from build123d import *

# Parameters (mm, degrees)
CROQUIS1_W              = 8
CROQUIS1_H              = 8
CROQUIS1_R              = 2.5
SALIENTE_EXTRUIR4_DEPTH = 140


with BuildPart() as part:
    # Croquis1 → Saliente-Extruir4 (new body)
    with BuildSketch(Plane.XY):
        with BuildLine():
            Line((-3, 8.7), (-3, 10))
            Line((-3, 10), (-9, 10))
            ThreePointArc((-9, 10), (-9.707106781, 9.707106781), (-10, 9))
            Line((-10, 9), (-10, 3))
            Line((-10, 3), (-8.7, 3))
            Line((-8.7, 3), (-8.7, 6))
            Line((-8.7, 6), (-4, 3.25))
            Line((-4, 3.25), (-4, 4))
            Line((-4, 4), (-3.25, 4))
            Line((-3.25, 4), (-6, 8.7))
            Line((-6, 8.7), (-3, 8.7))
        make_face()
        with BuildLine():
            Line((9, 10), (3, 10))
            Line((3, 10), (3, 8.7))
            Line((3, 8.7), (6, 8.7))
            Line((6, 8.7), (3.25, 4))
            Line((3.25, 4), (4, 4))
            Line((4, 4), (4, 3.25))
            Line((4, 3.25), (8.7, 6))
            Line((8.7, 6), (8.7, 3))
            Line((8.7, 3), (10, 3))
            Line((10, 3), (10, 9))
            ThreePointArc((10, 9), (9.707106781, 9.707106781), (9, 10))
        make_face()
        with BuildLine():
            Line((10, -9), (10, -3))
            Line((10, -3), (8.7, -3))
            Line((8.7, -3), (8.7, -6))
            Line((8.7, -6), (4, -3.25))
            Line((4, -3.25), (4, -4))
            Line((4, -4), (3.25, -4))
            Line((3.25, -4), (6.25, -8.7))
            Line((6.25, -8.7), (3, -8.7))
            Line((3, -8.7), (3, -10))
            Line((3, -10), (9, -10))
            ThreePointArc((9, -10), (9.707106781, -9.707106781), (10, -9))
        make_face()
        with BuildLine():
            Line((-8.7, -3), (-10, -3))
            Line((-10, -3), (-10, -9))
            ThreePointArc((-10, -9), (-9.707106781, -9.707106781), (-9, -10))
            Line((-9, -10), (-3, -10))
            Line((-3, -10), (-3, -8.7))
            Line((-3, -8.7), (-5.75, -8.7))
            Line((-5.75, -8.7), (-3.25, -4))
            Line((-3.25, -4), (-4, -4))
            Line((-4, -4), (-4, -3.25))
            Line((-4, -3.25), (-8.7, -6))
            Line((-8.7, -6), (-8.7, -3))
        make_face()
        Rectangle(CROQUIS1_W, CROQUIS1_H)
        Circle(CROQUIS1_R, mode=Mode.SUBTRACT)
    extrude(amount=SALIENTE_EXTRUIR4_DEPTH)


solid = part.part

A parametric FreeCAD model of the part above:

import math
import FreeCAD as App
import Part
import Sketcher

V = App.Vector

doc = App.newDocument("Part")
body = doc.addObject("PartDesign::Body", "Body")

# Sketch on XY plane
sketch1 = doc.addObject("Sketcher::SketchObject", "Sketch")
body.addObject(sketch1)
sketch1.AttachmentSupport = (doc.XY_Plane, [""])
sketch1.MapMode = "FlatFace"
sketch1.addGeometry([
    Part.LineSegment(V(-3, 8.7, 0), V(-3, 10, 0)),  # 0
    Part.LineSegment(V(-3, 10, 0), V(-9, 10, 0)),  # 1
    Part.ArcOfCircle(Part.Circle(V(-9, 9, 0), V(0, 0, 1), 1), math.radians(90), math.radians(180)),  # 2
    Part.LineSegment(V(-10, 9, 0), V(-10, 3, 0)),  # 3
    Part.LineSegment(V(-10, 3, 0), V(-8.7, 3, 0)),  # 4
    Part.LineSegment(V(-8.7, 3, 0), V(-8.7, 6, 0)),  # 5
    Part.LineSegment(V(-8.7, 6, 0), V(-4, 3.2, 0)),  # 6
    Part.LineSegment(V(-4, 3.2, 0), V(-4, -3.2, 0)),  # 7
    Part.LineSegment(V(-4, -3.2, 0), V(-8.7, -6, 0)),  # 8
    Part.LineSegment(V(-8.7, -6, 0), V(-8.7, -3, 0)),  # 9
    Part.LineSegment(V(-8.7, -3, 0), V(-10, -3, 0)),  # 10
    Part.LineSegment(V(-10, -3, 0), V(-10, -9, 0)),  # 11
    Part.ArcOfCircle(Part.Circle(V(-9, -9, 0), V(0, 0, 1), 1), math.radians(-180), math.radians(-90)),  # 12
    Part.LineSegment(V(-9, -10, 0), V(-3, -10, 0)),  # 13
    Part.LineSegment(V(-3, -10, 0), V(-3, -8.7, 0)),  # 14
    Part.LineSegment(V(-3, -8.7, 0), V(-5.8, -8.7, 0)),  # 15
    Part.LineSegment(V(-5.8, -8.7, 0), V(-3.2, -4, 0)),  # 16
    Part.LineSegment(V(-3.2, -4, 0), V(3.2, -4, 0)),  # 17
    Part.LineSegment(V(3.2, -4, 0), V(6.2, -8.7, 0)),  # 18
    Part.LineSegment(V(6.2, -8.7, 0), V(3, -8.7, 0)),  # 19
    Part.LineSegment(V(3, -8.7, 0), V(3, -10, 0)),  # 20
    Part.LineSegment(V(3, -10, 0), V(9, -10, 0)),  # 21
    Part.ArcOfCircle(Part.Circle(V(9, -9, 0), V(0, 0, 1), 1), math.radians(-90), math.radians(0)),  # 22
    Part.LineSegment(V(10, -9, 0), V(10, -3, 0)),  # 23
    Part.LineSegment(V(10, -3, 0), V(8.7, -3, 0)),  # 24
    Part.LineSegment(V(8.7, -3, 0), V(8.7, -6, 0)),  # 25
    Part.LineSegment(V(8.7, -6, 0), V(4, -3.2, 0)),  # 26
    Part.LineSegment(V(4, -3.2, 0), V(4, 3.2, 0)),  # 27
    Part.LineSegment(V(4, 3.2, 0), V(8.7, 6, 0)),  # 28
    Part.LineSegment(V(8.7, 6, 0), V(8.7, 3, 0)),  # 29
    Part.LineSegment(V(8.7, 3, 0), V(10, 3, 0)),  # 30
    Part.LineSegment(V(10, 3, 0), V(10, 9, 0)),  # 31
    Part.ArcOfCircle(Part.Circle(V(9, 9, 0), V(0, 0, 1), 1), math.radians(0), math.radians(90)),  # 32
    Part.LineSegment(V(9, 10, 0), V(3, 10, 0)),  # 33
    Part.LineSegment(V(3, 10, 0), V(3, 8.7, 0)),  # 34
    Part.LineSegment(V(3, 8.7, 0), V(6, 8.7, 0)),  # 35
    Part.LineSegment(V(6, 8.7, 0), V(3.2, 4, 0)),  # 36
    Part.LineSegment(V(3.2, 4, 0), V(-3.2, 4, 0)),  # 37
    Part.LineSegment(V(-3.2, 4, 0), V(-6, 8.7, 0)),  # 38
    Part.LineSegment(V(-6, 8.7, 0), V(-3, 8.7, 0)),  # 39
    Part.Circle(V(0, 0, 0), V(0, 0, 1), 2.5),  # 40
], False)
sketch1.addConstraint([
    Sketcher.Constraint("Coincident", 0, 2, 1, 1),
    Sketcher.Constraint("Tangent", 1, 2, 2, 1),
    Sketcher.Constraint("Tangent", 2, 2, 3, 1),
    Sketcher.Constraint("Coincident", 3, 2, 4, 1),
    Sketcher.Constraint("Coincident", 4, 2, 5, 1),
    Sketcher.Constraint("Coincident", 5, 2, 6, 1),
    Sketcher.Constraint("Coincident", 6, 2, 7, 1),
    Sketcher.Constraint("Coincident", 7, 2, 8, 1),
    Sketcher.Constraint("Coincident", 8, 2, 9, 1),
    Sketcher.Constraint("Coincident", 9, 2, 10, 1),
    Sketcher.Constraint("Coincident", 10, 2, 11, 1),
    Sketcher.Constraint("Tangent", 11, 2, 12, 1),
    Sketcher.Constraint("Tangent", 12, 2, 13, 1),
    Sketcher.Constraint("Coincident", 13, 2, 14, 1),
    Sketcher.Constraint("Coincident", 14, 2, 15, 1),
    Sketcher.Constraint("Coincident", 15, 2, 16, 1),
    Sketcher.Constraint("Coincident", 16, 2, 17, 1),
    Sketcher.Constraint("Coincident", 17, 2, 18, 1),
    Sketcher.Constraint("Coincident", 18, 2, 19, 1),
    Sketcher.Constraint("Coincident", 19, 2, 20, 1),
    Sketcher.Constraint("Coincident", 20, 2, 21, 1),
    Sketcher.Constraint("Tangent", 21, 2, 22, 1),
    Sketcher.Constraint("Tangent", 22, 2, 23, 1),
    Sketcher.Constraint("Coincident", 23, 2, 24, 1),
    Sketcher.Constraint("Coincident", 24, 2, 25, 1),
    Sketcher.Constraint("Coincident", 25, 2, 26, 1),
    Sketcher.Constraint("Coincident", 26, 2, 27, 1),
    Sketcher.Constraint("Coincident", 27, 2, 28, 1),
    Sketcher.Constraint("Coincident", 28, 2, 29, 1),
    Sketcher.Constraint("Coincident", 29, 2, 30, 1),
    Sketcher.Constraint("Coincident", 30, 2, 31, 1),
    Sketcher.Constraint("Tangent", 31, 2, 32, 1),
    Sketcher.Constraint("Tangent", 32, 2, 33, 1),
    Sketcher.Constraint("Coincident", 33, 2, 34, 1),
    Sketcher.Constraint("Coincident", 34, 2, 35, 1),
    Sketcher.Constraint("Coincident", 35, 2, 36, 1),
    Sketcher.Constraint("Coincident", 36, 2, 37, 1),
    Sketcher.Constraint("Coincident", 37, 2, 38, 1),
    Sketcher.Constraint("Coincident", 38, 2, 39, 1),
    Sketcher.Constraint("Coincident", 39, 2, 0, 1),
    Sketcher.Constraint("Vertical", 0),
    Sketcher.Constraint("Horizontal", 1),
    Sketcher.Constraint("Vertical", 3),
    Sketcher.Constraint("Horizontal", 4),
    Sketcher.Constraint("Vertical", 5),
    Sketcher.Constraint("Vertical", 7),
    Sketcher.Constraint("Vertical", 9),
    Sketcher.Constraint("Horizontal", 10),
    Sketcher.Constraint("Vertical", 11),
    Sketcher.Constraint("Horizontal", 13),
    Sketcher.Constraint("Vertical", 14),
    Sketcher.Constraint("Horizontal", 15),
    Sketcher.Constraint("Horizontal", 17),
    Sketcher.Constraint("Horizontal", 19),
    Sketcher.Constraint("Vertical", 20),
    Sketcher.Constraint("Horizontal", 21),
    Sketcher.Constraint("Vertical", 23),
    Sketcher.Constraint("Horizontal", 24),
    Sketcher.Constraint("Vertical", 25),
    Sketcher.Constraint("Vertical", 27),
    Sketcher.Constraint("Vertical", 29),
    Sketcher.Constraint("Horizontal", 30),
    Sketcher.Constraint("Vertical", 31),
    Sketcher.Constraint("Horizontal", 33),
    Sketcher.Constraint("Vertical", 34),
    Sketcher.Constraint("Horizontal", 35),
    Sketcher.Constraint("Horizontal", 37),
    Sketcher.Constraint("Horizontal", 39),
    Sketcher.Constraint("Coincident", 40, 3, -1, 1),
    Sketcher.Constraint("Equal", 2, 12),
    Sketcher.Constraint("Equal", 12, 22),
    Sketcher.Constraint("Equal", 22, 32),
    Sketcher.Constraint("Symmetric", 2, 3, 22, 3, -1, 1),
    Sketcher.Constraint("Symmetric", 12, 3, 32, 3, -1, 1),
    Sketcher.Constraint("Symmetric", 4, 2, 24, 2, -1, 1),
    Sketcher.Constraint("Symmetric", 6, 2, 26, 2, -1, 1),
    Sketcher.Constraint("Symmetric", 8, 2, 28, 2, -1, 1),
    Sketcher.Constraint("Symmetric", 14, 2, 34, 2, -1, 1),
    Sketcher.Constraint("Symmetric", 16, 2, 36, 2, -1, 1),
    Sketcher.Constraint("Symmetric", 19, 2, 39, 2, -1, 1),
    Sketcher.Constraint("Symmetric", 12, 3, 22, 3, -2),
    Sketcher.Constraint("Symmetric", 14, 2, 19, 2, -2),
    Sketcher.Constraint("Symmetric", 9, 2, 24, 2, -2),
    Sketcher.Constraint("Parallel", 6, 26),
    Sketcher.Constraint("Parallel", 8, 28),
    Sketcher.Constraint("Perpendicular", 26, 36),
    Sketcher.Constraint("Perpendicular", 28, 38),
    Sketcher.Constraint("Horizontal", 8, 2, 25, 2),
    Sketcher.Constraint("Horizontal", 7, 2, 26, 2),
    Sketcher.Constraint("Horizontal", 4, 2, 29, 2),
    Sketcher.Constraint("Vertical", 17, 2, 36, 2),
    Sketcher.Constraint("Vertical", 16, 2, 37, 2),
    Sketcher.Constraint("Equal", 30, 0),
    Sketcher.Constraint("Equal", 33, 3),
    Sketcher.Constraint("Equal", 39, 5),
    Sketcher.Constraint("Equal", 37, 7),
    Sketcher.Constraint("Equal", 28, 36),
    Sketcher.Constraint("Diameter", 40, 5.0),
    Sketcher.Constraint("Radius", 2, 1.0),
    Sketcher.Constraint("DistanceX", 1, 2, 1, 1, 6.0),
    Sketcher.Constraint("DistanceX", 35, 1, 35, 2, 3.0),
    Sketcher.Constraint("DistanceX", 4, 1, 4, 2, 1.3),
    Sketcher.Constraint("DistanceX", 17, 1, 17, 2, 6.5),
    Sketcher.Constraint("DistanceX", 2, 3, -1, 1, 9.0),
    Sketcher.Constraint("DistanceX", 6, 2, -1, 1, 4.0),
    Sketcher.Constraint("DistanceX", 17, 2, 18, 2, 3.0),
    Sketcher.Constraint("DistanceX", 15, 2, 15, 1, 2.75),
])
pad1 = doc.addObject("PartDesign::Pad", "Pad")
body.addObject(pad1)
pad1.Profile = sketch1
pad1.Length = 140

doc.recompute()
